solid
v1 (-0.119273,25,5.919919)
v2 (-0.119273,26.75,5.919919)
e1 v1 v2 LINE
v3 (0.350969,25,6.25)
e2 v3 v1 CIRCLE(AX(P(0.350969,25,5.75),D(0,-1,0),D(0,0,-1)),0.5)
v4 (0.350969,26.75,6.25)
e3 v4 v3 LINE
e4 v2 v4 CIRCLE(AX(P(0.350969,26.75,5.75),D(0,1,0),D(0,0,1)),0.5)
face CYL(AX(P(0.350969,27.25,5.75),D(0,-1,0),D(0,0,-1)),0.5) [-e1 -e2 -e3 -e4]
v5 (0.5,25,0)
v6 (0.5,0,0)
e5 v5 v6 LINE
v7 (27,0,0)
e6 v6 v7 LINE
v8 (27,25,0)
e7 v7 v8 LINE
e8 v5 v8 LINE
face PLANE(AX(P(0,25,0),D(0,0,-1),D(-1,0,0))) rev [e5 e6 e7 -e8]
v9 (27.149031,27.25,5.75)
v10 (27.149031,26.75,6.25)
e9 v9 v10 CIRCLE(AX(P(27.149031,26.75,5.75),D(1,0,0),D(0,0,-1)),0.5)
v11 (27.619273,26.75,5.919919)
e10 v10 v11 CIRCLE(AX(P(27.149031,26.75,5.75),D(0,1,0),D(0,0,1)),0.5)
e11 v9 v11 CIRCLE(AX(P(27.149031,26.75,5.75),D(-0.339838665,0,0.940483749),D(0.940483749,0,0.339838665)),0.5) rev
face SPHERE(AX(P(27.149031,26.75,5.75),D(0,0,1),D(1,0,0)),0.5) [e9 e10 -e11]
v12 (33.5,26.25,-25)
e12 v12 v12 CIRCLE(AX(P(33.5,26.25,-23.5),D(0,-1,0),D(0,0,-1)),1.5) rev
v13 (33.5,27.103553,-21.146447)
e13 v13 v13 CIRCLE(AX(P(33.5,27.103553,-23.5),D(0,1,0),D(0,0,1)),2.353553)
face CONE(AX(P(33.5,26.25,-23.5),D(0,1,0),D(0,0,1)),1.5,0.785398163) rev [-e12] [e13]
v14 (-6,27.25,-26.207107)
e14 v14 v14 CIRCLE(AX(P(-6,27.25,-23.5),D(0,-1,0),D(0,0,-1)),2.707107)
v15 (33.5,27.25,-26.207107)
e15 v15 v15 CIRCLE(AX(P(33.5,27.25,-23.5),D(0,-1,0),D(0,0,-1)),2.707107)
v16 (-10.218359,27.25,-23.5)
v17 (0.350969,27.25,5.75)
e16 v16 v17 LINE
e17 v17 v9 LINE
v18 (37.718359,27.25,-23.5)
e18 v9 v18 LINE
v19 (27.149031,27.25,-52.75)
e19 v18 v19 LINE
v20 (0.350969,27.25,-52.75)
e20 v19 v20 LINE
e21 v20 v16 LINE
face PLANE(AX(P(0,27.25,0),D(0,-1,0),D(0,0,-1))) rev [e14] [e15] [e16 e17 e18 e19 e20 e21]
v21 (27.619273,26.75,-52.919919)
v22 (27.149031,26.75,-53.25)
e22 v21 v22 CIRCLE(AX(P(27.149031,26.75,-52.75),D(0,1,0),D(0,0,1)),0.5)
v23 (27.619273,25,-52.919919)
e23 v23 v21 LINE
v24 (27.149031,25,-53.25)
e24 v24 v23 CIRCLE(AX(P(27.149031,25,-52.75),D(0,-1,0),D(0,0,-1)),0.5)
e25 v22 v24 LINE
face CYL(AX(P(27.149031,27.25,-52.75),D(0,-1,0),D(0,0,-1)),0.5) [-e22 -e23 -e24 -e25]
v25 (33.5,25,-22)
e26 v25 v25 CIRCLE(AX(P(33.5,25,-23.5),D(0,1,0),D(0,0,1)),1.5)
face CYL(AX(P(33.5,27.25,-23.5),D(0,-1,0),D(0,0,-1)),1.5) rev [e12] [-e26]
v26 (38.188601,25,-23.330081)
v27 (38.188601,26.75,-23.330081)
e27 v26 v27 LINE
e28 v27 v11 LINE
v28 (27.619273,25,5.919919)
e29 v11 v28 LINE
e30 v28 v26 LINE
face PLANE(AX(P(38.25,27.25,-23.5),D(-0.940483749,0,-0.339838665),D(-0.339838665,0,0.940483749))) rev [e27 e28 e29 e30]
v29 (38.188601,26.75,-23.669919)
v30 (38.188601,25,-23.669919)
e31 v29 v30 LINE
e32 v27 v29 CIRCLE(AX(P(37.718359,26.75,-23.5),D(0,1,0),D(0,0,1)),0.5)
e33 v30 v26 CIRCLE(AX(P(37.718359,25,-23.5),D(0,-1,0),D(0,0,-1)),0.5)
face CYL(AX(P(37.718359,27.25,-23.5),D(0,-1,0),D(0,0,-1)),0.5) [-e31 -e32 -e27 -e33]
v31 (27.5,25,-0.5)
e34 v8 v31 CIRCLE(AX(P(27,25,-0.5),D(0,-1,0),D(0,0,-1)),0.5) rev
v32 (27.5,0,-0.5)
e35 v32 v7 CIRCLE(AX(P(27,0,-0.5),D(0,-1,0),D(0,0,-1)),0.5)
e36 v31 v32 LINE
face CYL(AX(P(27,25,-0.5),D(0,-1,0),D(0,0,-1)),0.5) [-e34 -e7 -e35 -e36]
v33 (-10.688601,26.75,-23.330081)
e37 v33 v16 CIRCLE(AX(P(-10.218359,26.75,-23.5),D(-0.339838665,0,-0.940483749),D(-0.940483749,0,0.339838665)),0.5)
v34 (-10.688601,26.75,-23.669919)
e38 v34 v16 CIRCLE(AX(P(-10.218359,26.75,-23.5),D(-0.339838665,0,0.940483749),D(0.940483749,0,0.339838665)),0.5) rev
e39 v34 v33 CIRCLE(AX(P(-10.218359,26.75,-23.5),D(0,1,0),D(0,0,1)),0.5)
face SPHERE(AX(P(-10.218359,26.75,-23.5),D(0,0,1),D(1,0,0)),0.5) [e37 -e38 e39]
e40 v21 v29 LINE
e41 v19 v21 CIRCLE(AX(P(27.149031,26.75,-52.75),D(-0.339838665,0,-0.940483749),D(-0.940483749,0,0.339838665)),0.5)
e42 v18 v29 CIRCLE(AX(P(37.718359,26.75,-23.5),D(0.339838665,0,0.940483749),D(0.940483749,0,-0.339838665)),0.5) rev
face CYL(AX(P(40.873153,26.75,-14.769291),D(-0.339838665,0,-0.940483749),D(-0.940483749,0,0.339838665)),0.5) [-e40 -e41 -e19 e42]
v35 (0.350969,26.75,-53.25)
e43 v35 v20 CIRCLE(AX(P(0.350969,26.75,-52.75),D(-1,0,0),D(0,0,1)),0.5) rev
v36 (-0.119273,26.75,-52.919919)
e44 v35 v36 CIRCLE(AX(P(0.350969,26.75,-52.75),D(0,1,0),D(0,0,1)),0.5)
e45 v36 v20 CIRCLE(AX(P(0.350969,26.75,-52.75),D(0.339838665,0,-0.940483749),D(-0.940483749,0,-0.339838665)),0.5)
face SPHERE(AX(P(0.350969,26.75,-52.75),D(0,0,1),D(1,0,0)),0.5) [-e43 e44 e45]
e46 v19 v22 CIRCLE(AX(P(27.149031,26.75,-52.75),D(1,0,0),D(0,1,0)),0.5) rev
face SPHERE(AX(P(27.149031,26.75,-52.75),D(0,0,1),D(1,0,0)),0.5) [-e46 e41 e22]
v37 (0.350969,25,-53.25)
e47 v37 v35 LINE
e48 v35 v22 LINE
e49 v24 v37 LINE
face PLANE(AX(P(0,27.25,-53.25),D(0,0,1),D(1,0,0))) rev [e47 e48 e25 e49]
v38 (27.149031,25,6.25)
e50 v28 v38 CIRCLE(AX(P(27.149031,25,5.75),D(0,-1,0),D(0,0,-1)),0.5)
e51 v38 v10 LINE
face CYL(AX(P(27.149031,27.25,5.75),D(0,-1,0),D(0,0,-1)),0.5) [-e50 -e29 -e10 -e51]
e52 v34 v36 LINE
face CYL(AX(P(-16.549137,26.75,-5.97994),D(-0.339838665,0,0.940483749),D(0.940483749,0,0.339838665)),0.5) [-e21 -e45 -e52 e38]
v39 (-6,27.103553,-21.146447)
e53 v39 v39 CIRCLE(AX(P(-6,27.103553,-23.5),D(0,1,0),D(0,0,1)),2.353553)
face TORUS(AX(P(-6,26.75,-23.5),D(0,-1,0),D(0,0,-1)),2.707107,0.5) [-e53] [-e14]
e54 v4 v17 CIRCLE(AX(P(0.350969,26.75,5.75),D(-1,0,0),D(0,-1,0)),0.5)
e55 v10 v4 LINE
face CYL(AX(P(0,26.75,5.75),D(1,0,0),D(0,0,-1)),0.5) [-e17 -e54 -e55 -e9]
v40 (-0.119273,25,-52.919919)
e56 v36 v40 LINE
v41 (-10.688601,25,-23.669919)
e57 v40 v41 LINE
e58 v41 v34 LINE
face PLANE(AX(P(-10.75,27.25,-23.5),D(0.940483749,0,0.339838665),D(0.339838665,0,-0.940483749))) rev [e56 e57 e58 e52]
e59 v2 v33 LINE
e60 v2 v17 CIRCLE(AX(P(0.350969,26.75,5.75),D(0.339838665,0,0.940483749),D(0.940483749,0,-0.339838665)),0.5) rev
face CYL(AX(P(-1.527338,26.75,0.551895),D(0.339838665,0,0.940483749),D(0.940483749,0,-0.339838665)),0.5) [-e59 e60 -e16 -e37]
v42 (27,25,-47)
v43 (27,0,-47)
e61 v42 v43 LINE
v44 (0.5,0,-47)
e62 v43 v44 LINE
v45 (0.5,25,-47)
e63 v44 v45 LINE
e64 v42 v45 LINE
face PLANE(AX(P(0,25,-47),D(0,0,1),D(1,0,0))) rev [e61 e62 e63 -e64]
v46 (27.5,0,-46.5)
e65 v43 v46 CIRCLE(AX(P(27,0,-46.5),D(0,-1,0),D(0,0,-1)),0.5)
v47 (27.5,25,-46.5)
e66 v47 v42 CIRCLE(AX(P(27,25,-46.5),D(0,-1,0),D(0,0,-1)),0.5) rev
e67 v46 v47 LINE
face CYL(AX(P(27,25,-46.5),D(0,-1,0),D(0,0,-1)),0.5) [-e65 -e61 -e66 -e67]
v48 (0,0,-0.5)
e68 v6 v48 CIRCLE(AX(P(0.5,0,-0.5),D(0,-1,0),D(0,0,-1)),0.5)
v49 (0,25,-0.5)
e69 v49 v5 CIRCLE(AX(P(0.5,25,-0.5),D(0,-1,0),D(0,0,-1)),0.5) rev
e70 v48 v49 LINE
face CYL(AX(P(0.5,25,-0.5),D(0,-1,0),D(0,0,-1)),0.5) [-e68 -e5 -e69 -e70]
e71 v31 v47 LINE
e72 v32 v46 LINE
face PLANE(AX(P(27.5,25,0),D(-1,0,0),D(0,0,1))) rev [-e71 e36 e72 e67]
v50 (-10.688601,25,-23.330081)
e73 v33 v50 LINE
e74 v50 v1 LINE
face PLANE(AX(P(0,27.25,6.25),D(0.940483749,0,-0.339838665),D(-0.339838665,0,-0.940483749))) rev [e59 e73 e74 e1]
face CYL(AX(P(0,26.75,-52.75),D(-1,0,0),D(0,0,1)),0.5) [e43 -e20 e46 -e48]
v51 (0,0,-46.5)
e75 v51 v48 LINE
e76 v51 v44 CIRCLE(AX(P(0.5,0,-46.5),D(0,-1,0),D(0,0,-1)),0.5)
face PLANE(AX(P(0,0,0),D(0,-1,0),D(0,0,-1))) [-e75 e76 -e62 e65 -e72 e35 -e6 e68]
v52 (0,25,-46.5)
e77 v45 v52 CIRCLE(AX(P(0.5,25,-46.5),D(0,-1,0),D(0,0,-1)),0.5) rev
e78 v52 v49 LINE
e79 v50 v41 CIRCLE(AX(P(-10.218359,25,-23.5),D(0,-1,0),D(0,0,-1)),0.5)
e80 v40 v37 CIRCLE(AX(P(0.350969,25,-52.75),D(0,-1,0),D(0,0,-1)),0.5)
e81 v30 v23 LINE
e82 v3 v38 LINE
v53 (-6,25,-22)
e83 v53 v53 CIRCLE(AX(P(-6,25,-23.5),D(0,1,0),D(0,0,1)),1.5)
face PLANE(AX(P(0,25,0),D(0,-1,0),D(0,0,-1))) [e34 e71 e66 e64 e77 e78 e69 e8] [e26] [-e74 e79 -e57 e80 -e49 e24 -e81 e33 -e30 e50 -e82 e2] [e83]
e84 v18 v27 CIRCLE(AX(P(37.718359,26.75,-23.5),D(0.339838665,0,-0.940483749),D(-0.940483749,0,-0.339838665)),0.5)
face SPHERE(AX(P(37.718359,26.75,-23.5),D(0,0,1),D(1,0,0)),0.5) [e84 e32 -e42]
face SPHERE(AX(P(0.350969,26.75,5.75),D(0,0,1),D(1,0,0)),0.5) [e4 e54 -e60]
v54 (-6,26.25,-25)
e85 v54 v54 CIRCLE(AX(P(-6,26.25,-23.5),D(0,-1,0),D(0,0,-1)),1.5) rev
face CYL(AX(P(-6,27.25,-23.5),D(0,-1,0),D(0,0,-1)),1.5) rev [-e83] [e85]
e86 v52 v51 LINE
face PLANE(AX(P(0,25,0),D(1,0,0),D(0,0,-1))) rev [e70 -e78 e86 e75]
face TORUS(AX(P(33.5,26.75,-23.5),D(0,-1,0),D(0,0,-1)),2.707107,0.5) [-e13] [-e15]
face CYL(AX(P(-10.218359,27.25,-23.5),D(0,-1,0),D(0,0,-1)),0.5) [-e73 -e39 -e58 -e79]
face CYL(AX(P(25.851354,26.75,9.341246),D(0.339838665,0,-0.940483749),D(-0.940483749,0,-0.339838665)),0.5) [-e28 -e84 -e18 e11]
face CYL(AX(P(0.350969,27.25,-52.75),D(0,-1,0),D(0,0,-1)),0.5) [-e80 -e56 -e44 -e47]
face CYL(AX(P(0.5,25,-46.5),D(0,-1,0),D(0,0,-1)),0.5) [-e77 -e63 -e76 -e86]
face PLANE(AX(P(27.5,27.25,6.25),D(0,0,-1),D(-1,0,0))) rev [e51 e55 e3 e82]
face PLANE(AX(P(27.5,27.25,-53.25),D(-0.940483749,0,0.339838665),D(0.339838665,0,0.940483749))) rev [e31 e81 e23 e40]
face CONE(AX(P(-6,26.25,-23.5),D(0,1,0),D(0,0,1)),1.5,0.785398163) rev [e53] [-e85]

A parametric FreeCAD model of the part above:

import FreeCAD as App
import Part
import Sketcher
from FreeCAD import Vector
Q = App.Units.Quantity


def edges_at(feature, points):
    """Names of the edges that pass closest to the given points."""
    edges = feature.Shape.Edges
    near = lambda p: min(range(len(edges)), key=lambda i: edges[i].distToShape(Part.Vertex(*p))[0])
    return sorted({f"Edge{near(p) + 1}" for p in points})

doc = App.newDocument("Part")
params = doc.addObject("Spreadsheet::Sheet", "Params")
for row, (alias, value) in enumerate([
    ("sketch1_height", "47 mm"),
    ("sketch1_width", "27.5 mm"),
    ("pad1_length", "25 mm"),
    ("sketch2_diameter", "3 mm"),
    ("sketch2_width", "27.5 mm"),
    ("pad2_length", "2.25 mm"),
    ("chamfer_size", "1 mm"),
    ("fillet_radius", "0.5 mm"),
], start=1):
    params.set(f"A{row}", alias)
    params.set(f"B{row}", "=" + value)
    params.setAlias(f"B{row}", alias)

body = doc.addObject("PartDesign::Body", "Body")

# Sketch on XZ plane
sketch1 = body.newObject("Sketcher::SketchObject", "Sketch")
sketch1.AttachmentSupport = (doc.getObject("XZ_Plane"), [""])
sketch1.MapMode = "FlatFace"
sketch1.addGeometry(Part.LineSegment(Vector(0, -47, 0), Vector(0, 0, 0)), False)
sketch1.addGeometry(Part.LineSegment(Vector(0, 0, 0), Vector(27.5, 0, 0)), False)
sketch1.addGeometry(Part.LineSegment(Vector(27.5, 0, 0), Vector(27.5, -47, 0)), False)
sketch1.addGeometry(Part.LineSegment(Vector(27.5, -47, 0), Vector(0, -47, 0)), False)
sketch1.addConstraint(Sketcher.Constraint("Coincident", 0, 2, 1, 1))
sketch1.addConstraint(Sketcher.Constraint("Coincident", 1, 2, 2, 1))
sketch1.addConstraint(Sketcher.Constraint("Coincident", 2, 2, 3, 1))
sketch1.addConstraint(Sketcher.Constraint("Coincident", 3, 2, 0, 1))
sketch1.addConstraint(Sketcher.Constraint("Vertical", 0))
sketch1.addConstraint(Sketcher.Constraint("Horizontal", 1))
sketch1.addConstraint(Sketcher.Constraint("Vertical", 2))
sketch1.addConstraint(Sketcher.Constraint("Horizontal", 3))
sketch1.addConstraint(Sketcher.Constraint("Coincident", 0, 2, -1, 1))
sketch1.addConstraint(Sketcher.Constraint("DistanceY", 0, 1, 0, 2, Q("47 mm")))
sketch1.addConstraint(Sketcher.Constraint("DistanceX", 1, 1, 1, 2, Q("27.5 mm")))
sketch1.setExpression("Constraints[9]", "Params.sketch1_height")
sketch1.setExpression("Constraints[10]", "Params.sketch1_width")
pad1 = body.newObject("PartDesign::Pad", "Pad")
pad1.Profile = sketch1
pad1.setExpression("Length", "Params.pad1_length")
pad1.Reversed = True

# Sketch on XZ plane
sketch2 = body.newObject("Sketcher::SketchObject", "Sketch001")
sketch2.AttachmentSupport = (doc.getObject("XZ_Plane"), [""])
sketch2.MapMode = "FlatFace"
sketch2.AttachmentOffset = App.Placement(Vector(0, 0, -25), App.Rotation())
sketch2.addGeometry(Part.LineSegment(Vector(27.5, -53.25, 0), Vector(0, -53.25, 0)), False)
sketch2.addGeometry(Part.LineSegment(Vector(0, -53.25, 0), Vector(-10.75, -23.5, 0)), False)
sketch2.addGeometry(Part.LineSegment(Vector(-10.75, -23.5, 0), Vector(0, 6.25, 0)), False)
sketch2.addGeometry(Part.LineSegment(Vector(0, 6.25, 0), Vector(27.5, 6.25, 0)), False)
sketch2.addGeometry(Part.LineSegment(Vector(27.5, 6.25, 0), Vector(38.25, -23.5, 0)), False)
sketch2.addGeometry(Part.LineSegment(Vector(38.25, -23.5, 0), Vector(27.5, -53.25, 0)), False)
sketch2.addGeometry(Part.Circle(Vector(33.5, -23.5, 0), Vector(0, 0, 1), 1.5), False)
sketch2.addGeometry(Part.Circle(Vector(-6, -23.5, 0), Vector(0, 0, 1), 1.5), False)
sketch2.addConstraint(Sketcher.Constraint("Coincident", 0, 2, 1, 1))
sketch2.addConstraint(Sketcher.Constraint("Coincident", 1, 2, 2, 1))
sketch2.addConstraint(Sketcher.Constraint("Coincident", 2, 2, 3, 1))
sketch2.addConstraint(Sketcher.Constraint("Coincident", 3, 2, 4, 1))
sketch2.addConstraint(Sketcher.Constraint("Coincident", 4, 2, 5, 1))
sketch2.addConstraint(Sketcher.Constraint("Coincident", 5, 2, 0, 1))
sketch2.addConstraint(Sketcher.Constraint("Horizontal", 0))
sketch2.addConstraint(Sketcher.Constraint("Horizontal", 3))
sketch2.addConstraint(Sketcher.Constraint("Equal", 6, 7))
sketch2.addConstraint(Sketcher.Constraint("PointOnObject", 0, 2, -2))
sketch2.addConstraint(Sketcher.Constraint("PointOnObject", 2, 2, -2))
sketch2.addConstraint(Sketcher.Constraint("Parallel", 1, 4))
sketch2.addConstraint(Sketcher.Constraint("Parallel", 2, 5))
sketch2.addConstraint(Sketcher.Constraint("Horizontal", 6, 3, 7, 3))
sketch2.addConstraint(Sketcher.Constraint("Horizontal", 7, 3, 1, 2))
sketch2.addConstraint(Sketcher.Constraint("Horizontal", 1, 2, 4, 2))
sketch2.addConstraint(Sketcher.Constraint("Vertical", 3, 2, 5, 2))
sketch2.addConstraint(Sketcher.Constraint("Diameter", 6, Q("3 mm")))
sketch2.addConstraint(Sketcher.Constraint("DistanceX", 0, 2, 0, 1, Q("27.5 mm")))
sketch2.addConstraint(Sketcher.Constraint("DistanceX", 7, 3, -1, 1, Q("6 mm")))
sketch2.addConstraint(Sketcher.Constraint("DistanceX", 3, 2, 6, 3, Q("6 mm")))
sketch2.addConstraint(Sketcher.Constraint("DistanceY", 6, 3, -1, 1, Q("23.5 mm")))
sketch2.addConstraint(Sketcher.Constraint("DistanceY", 0, 2, 2, 2, Q("59.5 mm")))
sketch2.addConstraint(Sketcher.Constraint("DistanceX", 1, 2, -1, 1, Q("10.75 mm")))
sketch2.setExpression("Constraints[17]", "Params.sketch2_diameter")
sketch2.setExpression("Constraints[18]", "Params.sketch2_width")
pad2 = body.newObject("PartDesign::Pad", "Pad001")
pad2.Profile = sketch2
pad2.setExpression("Length", "Params.pad2_length")
pad2.Reversed = True
doc.recompute()

chamfer = body.newObject("PartDesign::Chamfer", "Chamfer")
chamfer.Base = (pad2, edges_at(pad2, [(-7.5, 27.25, -23.5), (32, 27.25, -23.5)]))
chamfer.setExpression("Size", "Params.chamfer_size")
doc.recompute()

fillet = body.newObject("PartDesign::Fillet", "Fillet")
fillet.Base = (chamfer, edges_at(chamfer, [
    (-5.375, 27.25, -38.375),
    (-5.375, 27.25, -8.625),
    (13.75, 27.25, 6.25),
    (32.875, 27.25, -8.625),
    (32.875, 27.25, -38.375),
    (13.75, 27.25, -53.25),
    (0, 26.125, -53.25),
    (-10.75, 26.125, -23.5),
    (0, 26.125, 6.25),
    (27.5, 26.125, 6.25),
    (38.25, 26.125, -23.5),
    (27.5, 26.125, -53.25),
    (31, 27.25, -23.5),
    (-8.5, 27.25, -23.5),
    (0, 12.5, -47),
    (27.5, 12.5, -47),
    (27.5, 12.5, 0),
    (0, 12.5, 0),
]))
fillet.setExpression("Radius", "Params.fillet_radius")

doc.recompute()
